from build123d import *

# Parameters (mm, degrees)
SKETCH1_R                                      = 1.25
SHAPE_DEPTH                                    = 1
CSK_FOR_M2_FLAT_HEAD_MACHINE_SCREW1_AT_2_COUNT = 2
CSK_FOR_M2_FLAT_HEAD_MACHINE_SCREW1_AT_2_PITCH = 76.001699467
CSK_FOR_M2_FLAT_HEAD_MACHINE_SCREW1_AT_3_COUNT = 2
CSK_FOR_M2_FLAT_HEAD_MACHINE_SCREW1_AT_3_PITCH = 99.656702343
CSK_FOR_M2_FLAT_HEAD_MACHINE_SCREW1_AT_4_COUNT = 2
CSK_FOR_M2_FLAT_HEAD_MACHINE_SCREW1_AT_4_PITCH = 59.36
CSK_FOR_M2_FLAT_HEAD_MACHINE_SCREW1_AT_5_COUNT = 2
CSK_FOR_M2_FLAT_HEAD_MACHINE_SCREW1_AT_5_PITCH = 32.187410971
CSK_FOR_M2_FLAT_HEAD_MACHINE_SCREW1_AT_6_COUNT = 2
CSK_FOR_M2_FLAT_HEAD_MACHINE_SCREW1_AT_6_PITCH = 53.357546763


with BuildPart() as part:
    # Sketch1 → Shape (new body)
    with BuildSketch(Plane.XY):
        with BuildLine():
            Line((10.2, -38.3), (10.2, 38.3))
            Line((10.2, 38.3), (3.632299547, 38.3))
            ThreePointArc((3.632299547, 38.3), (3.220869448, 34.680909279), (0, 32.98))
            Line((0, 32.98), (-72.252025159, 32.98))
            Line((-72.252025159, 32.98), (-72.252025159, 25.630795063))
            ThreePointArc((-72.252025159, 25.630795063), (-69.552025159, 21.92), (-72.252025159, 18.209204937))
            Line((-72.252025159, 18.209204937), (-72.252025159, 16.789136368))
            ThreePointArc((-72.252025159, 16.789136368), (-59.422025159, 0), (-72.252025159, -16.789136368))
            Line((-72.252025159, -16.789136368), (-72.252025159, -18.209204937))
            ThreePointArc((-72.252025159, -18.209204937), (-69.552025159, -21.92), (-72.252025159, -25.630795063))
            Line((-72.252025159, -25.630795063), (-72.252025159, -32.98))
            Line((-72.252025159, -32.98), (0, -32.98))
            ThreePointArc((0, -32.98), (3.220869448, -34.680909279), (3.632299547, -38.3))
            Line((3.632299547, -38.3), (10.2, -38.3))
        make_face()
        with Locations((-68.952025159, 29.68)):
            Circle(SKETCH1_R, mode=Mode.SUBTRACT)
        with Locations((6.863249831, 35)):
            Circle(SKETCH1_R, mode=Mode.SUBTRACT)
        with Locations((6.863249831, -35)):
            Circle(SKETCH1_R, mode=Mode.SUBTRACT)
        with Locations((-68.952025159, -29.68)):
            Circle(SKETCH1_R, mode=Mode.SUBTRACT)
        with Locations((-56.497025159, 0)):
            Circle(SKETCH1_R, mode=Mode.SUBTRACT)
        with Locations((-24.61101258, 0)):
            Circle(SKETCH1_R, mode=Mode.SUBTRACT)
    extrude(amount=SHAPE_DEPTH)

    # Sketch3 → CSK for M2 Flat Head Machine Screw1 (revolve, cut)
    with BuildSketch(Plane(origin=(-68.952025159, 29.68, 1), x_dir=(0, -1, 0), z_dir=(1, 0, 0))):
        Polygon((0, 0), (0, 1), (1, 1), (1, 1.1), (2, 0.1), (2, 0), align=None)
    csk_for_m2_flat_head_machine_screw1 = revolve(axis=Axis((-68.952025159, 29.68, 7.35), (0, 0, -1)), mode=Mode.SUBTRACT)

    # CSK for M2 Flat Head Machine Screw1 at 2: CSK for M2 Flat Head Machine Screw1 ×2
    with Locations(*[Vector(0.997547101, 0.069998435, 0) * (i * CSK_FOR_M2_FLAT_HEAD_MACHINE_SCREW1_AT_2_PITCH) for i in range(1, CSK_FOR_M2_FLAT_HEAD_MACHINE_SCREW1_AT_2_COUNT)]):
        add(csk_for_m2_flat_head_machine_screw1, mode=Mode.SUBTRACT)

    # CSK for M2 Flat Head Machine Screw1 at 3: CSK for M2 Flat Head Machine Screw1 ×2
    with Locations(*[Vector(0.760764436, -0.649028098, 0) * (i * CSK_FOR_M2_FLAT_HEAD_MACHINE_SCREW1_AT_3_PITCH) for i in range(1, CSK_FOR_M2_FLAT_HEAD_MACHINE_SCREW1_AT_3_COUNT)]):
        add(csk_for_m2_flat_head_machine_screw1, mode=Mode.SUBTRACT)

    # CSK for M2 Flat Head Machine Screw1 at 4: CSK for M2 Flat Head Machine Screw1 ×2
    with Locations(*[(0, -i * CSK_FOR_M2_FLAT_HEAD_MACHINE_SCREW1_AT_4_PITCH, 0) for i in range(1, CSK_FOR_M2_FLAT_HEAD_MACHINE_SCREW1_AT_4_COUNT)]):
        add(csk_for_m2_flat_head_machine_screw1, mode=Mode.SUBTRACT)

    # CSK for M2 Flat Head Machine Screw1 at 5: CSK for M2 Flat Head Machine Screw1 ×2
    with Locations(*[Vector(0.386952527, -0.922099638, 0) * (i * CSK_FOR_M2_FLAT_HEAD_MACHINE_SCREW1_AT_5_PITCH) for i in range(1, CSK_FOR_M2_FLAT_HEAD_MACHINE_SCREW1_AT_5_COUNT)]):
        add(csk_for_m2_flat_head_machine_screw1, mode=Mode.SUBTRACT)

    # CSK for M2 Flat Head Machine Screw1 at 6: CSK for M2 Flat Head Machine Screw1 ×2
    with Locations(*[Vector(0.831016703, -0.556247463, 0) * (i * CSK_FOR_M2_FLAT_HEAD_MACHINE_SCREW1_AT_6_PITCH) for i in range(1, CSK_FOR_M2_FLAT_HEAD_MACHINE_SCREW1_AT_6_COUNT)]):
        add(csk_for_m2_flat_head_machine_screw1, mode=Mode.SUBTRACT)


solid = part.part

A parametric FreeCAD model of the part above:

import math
import FreeCAD as App
import Part
import Sketcher
from FreeCAD import Vector


def add_polygon(sketch, points):
    """Adds a closed chain of lines whose ends are joined by coincident constraints."""
    first, n = sketch.GeometryCount, len(points)
    for a, b in zip(points, points[1:] + points[:1]):
        sketch.addGeometry(Part.LineSegment(App.Vector(*a, 0), App.Vector(*b, 0)), False)
    for i in range(n):
        sketch.addConstraint(Sketcher.Constraint("Coincident", first + i, 2, first + (i + 1) % n, 1))

doc = App.newDocument("Part")
body = doc.addObject("PartDesign::Body", "Body")

sketch1 = body.newObject("Sketcher::SketchObject", "Sketch")
sketch1.AttachmentSupport = (doc.getObject("XY_Plane"), [""])
sketch1.MapMode = "FlatFace"
sketch1.addGeometry(Part.LineSegment(Vector(10.2, -38.3, 0), Vector(10.2, 38.3, 0)), False)
sketch1.addGeometry(Part.LineSegment(Vector(10.2, 38.3, 0), Vector(3.6323, 38.3, 0)), False)
sketch1.addGeometry(Part.ArcOfCircle(Part.Circle(Vector(0, 36.88, 0), Vector(0, 0, 1), 3.9), math.radians(-90), math.radians(21.352363)), False)
sketch1.addGeometry(Part.LineSegment(Vector(0, 32.98, 0), Vector(-72.252025, 32.98, 0)), False)
sketch1.addGeometry(Part.LineSegment(Vector(-72.252025, 32.98, 0), Vector(-72.252025, 25.630795, 0)), False)
sketch1.addGeometry(Part.ArcOfCircle(Part.Circle(Vector(-73.452025, 21.92, 0), Vector(0, 0, 1), 3.9), math.radians(-72.079787), math.radians(72.079787)), False)
sketch1.addGeometry(Part.LineSegment(Vector(-72.252025, 18.209205, 0), Vector(-72.252025, 16.789136, 0)), False)
sketch1.addGeometry(Part.ArcOfCircle(Part.Circle(Vector(-76.822025, 0, 0), Vector(0, 0, 1), 17.4), math.radians(-74.773013), math.radians(74.773013)), False)
sketch1.addGeometry(Part.LineSegment(Vector(-72.252025, -16.789136, 0), Vector(-72.252025, -18.209205, 0)), False)
sketch1.addGeometry(Part.ArcOfCircle(Part.Circle(Vector(-73.452025, -21.92, 0), Vector(0, 0, 1), 3.9), math.radians(-72.079787), math.radians(72.079787)), False)
sketch1.addGeometry(Part.LineSegment(Vector(-72.252025, -25.630795, 0), Vector(-72.252025, -32.98, 0)), False)
sketch1.addGeometry(Part.LineSegment(Vector(-72.252025, -32.98, 0), Vector(0, -32.98, 0)), False)
sketch1.addGeometry(Part.ArcOfCircle(Part.Circle(Vector(0, -36.88, 0), Vector(0, 0, 1), 3.9), math.radians(-21.352363), math.radians(90)), False)
sketch1.addGeometry(Part.LineSegment(Vector(3.6323, -38.3, 0), Vector(10.2, -38.3, 0)), False)
sketch1.addGeometry(Part.Circle(Vector(-68.952025, -29.68, 0), Vector(0, 0, 1), 1.25), False)
sketch1.addGeometry(Part.Circle(Vector(6.86325, -35, 0), Vector(0, 0, 1), 1.25), False)
sketch1.addGeometry(Part.Circle(Vector(-56.497025, 0, 0), Vector(0, 0, 1), 1.25), False)
sketch1.addGeometry(Part.Circle(Vector(-68.952025, 29.68, 0), Vector(0, 0, 1), 1.25), False)
sketch1.addGeometry(Part.Circle(Vector(-24.611013, 0, 0), Vector(0, 0, 1), 1.25), False)
sketch1.addGeometry(Part.Circle(Vector(6.86325, 35, 0), Vector(0, 0, 1), 1.25), False)
sketch1.addConstraint(Sketcher.Constraint("Coincident", 0, 2, 1, 1))
sketch1.addConstraint(Sketcher.Constraint("Coincident", 1, 2, 2, 2))
sketch1.addConstraint(Sketcher.Constraint("Tangent", 2, 1, 3, 1))
sketch1.addConstraint(Sketcher.Constraint("Coincident", 3, 2, 4, 1))
sketch1.addConstraint(Sketcher.Constraint("Coincident", 4, 2, 5, 2))
sketch1.addConstraint(Sketcher.Constraint("Coincident", 5, 1, 6, 1))
sketch1.addConstraint(Sketcher.Constraint("Coincident", 6, 2, 7, 2))
sketch1.addConstraint(Sketcher.Constraint("Coincident", 7, 1, 8, 1))
sketch1.addConstraint(Sketcher.Constraint("Coincident", 8, 2, 9, 2))
sketch1.addConstraint(Sketcher.Constraint("Coincident", 9, 1, 10, 1))
sketch1.addConstraint(Sketcher.Constraint("Coincident", 10, 2, 11, 1))
sketch1.addConstraint(Sketcher.Constraint("Tangent", 11, 2, 12, 2))
sketch1.addConstraint(Sketcher.Constraint("Coincident", 12, 1, 13, 1))
sketch1.addConstraint(Sketcher.Constraint("Coincident", 13, 2, 0, 1))
sketch1.addConstraint(Sketcher.Constraint("Vertical", 0))
sketch1.addConstraint(Sketcher.Constraint("Horizontal", 1))
sketch1.addConstraint(Sketcher.Constraint("Horizontal", 3))
sketch1.addConstraint(Sketcher.Constraint("Vertical", 4))
sketch1.addConstraint(Sketcher.Constraint("Vertical", 6))
sketch1.addConstraint(Sketcher.Constraint("Vertical", 8))
sketch1.addConstraint(Sketcher.Constraint("Vertical", 10))
sketch1.addConstraint(Sketcher.Constraint("Horizontal", 11))
sketch1.addConstraint(Sketcher.Constraint("Horizontal", 13))
sketch1.addConstraint(Sketcher.Constraint("Equal", 2, 5))
sketch1.addConstraint(Sketcher.Constraint("Equal", 5, 9))
sketch1.addConstraint(Sketcher.Constraint("Equal", 9, 12))
sketch1.addConstraint(Sketcher.Constraint("Equal", 14, 15))
sketch1.addConstraint(Sketcher.Constraint("Equal", 15, 16))
sketch1.addConstraint(Sketcher.Constraint("Equal", 16, 17))
sketch1.addConstraint(Sketcher.Constraint("Equal", 17, 18))
sketch1.addConstraint(Sketcher.Constraint("Equal", 18, 19))
sketch1.addConstraint(Sketcher.Constraint("Symmetric", 2, 3, 12, 3, -1, 1))
sketch1.addConstraint(Sketcher.Constraint("Symmetric", 5, 3, 9, 3, -1))
sketch1.addConstraint(Sketcher.Constraint("Symmetric", 14, 3, 17, 3, -1))
sketch1.addConstraint(Sketcher.Constraint("Symmetric", 15, 3, 19, 3, -1))
sketch1.addConstraint(Sketcher.Constraint("Symmetric", 6, 2, 7, 1, -1))
sketch1.addConstraint(Sketcher.Constraint("Symmetric", 1, 2, 12, 1, -1))
sketch1.addConstraint(Sketcher.Constraint("PointOnObject", 16, 3, -1))
sketch1.addConstraint(Sketcher.Constraint("PointOnObject", 18, 3, -1))
sketch1.addConstraint(Sketcher.Constraint("Vertical", 4, 2, 5, 1))
sketch1.addConstraint(Sketcher.Constraint("Vertical", 8, 2, 9, 1))
sketch1.addConstraint(Sketcher.Constraint("Diameter", 14, 2.5))
sketch1.addConstraint(Sketcher.Constraint("Radius", 2, 3.9))
sketch1.addConstraint(Sketcher.Constraint("Radius", 7, 17.4))
sketch1.addConstraint(Sketcher.Constraint("DistanceY", 0, 1, 0, 2, 76.6))
sketch1.addConstraint(Sketcher.Constraint("DistanceY", 15, 3, -1, 1, 35.0))
sketch1.addConstraint(Sketcher.Constraint("DistanceX", -1, 1, 0, 2, 10.2))
sketch1.addConstraint(Sketcher.Constraint("DistanceY", 9, 3, 2, 3, 58.8))
sketch1.addConstraint(Sketcher.Constraint("DistanceX", 9, 3, 14, 3, 4.5))
sketch1.addConstraint(Sketcher.Constraint("DistanceY", 14, 3, 5, 3, 51.6))
sketch1.addConstraint(Sketcher.Constraint("DistanceX", 3, 2, 17, 3, 3.3))
sketch1.addConstraint(Sketcher.Constraint("DistanceY", -1, 1, 2, 3, 36.88))
sketch1.addConstraint(Sketcher.Constraint("DistanceX", 7, 3, 5, 3, 3.37))
sketch1.addConstraint(Sketcher.Constraint("DistanceX", 7, 3, 16, 3, 20.325))
sketch1.addConstraint(Sketcher.Constraint("DistanceX", 3, 2, 3, 1, 72.252025))
sketch1.addConstraint(Sketcher.Constraint("DistanceX", -1, 1, 15, 3, 6.86325))
sketch1.addConstraint(Sketcher.Constraint("DistanceX", 18, 3, -1, 1, 24.611013))
pad1 = body.newObject("PartDesign::Pad", "Pad")
pad1.Profile = sketch1
pad1.Length = 1

sketch2 = body.newObject("Sketcher::SketchObject", "Sketch001")
sketch2.AttachmentSupport = (doc.getObject("YZ_Plane"), [""])
sketch2.MapMode = "FlatFace"
sketch2.AttachmentOffset = App.Placement(Vector(0, 0, -68.952025), App.Rotation())
add_polygon(sketch2, [(29.68, 0), (29.68, 1), (27.68, 1), (27.68, 0.9), (28.68, -0.1), (28.68, 0)])
sketch2.addGeometry(Part.LineSegment(Vector(29.68, 1, 0), Vector(29.68, -0.1, 0)), True)
sketch2.addConstraint(Sketcher.Constraint("Vertical", 0))
sketch2.addConstraint(Sketcher.Constraint("Horizontal", 1))
sketch2.addConstraint(Sketcher.Constraint("Vertical", 2))
sketch2.addConstraint(Sketcher.Constraint("Vertical", 4))
sketch2.addConstraint(Sketcher.Constraint("Horizontal", 5))
sketch2.addConstraint(Sketcher.Constraint("Vertical", 6))
sketch2.addConstraint(Sketcher.Constraint("Coincident", 6, 1, 0, 2))
sketch2.addConstraint(Sketcher.Constraint("PointOnObject", 4, 2, -1))
sketch2.addConstraint(Sketcher.Constraint("Horizontal", 3, 2, 6, 2))
sketch2.addConstraint(Sketcher.Constraint("Equal", 5, 0))
sketch2.addConstraint(Sketcher.Constraint("Equal", 2, 4))
sketch2.addConstraint(Sketcher.Constraint("DistanceX", 1, 2, 1, 1, 2.0))
sketch2.addConstraint(Sketcher.Constraint("DistanceX", 5, 1, 5, 2, 1.0))
sketch2.addConstraint(Sketcher.Constraint("DistanceY", 2, 2, 2, 1, 0.1))
sketch2.addConstraint(Sketcher.Constraint("DistanceX", -1, 1, 0, 2, 29.68))
groove = body.newObject("PartDesign::Groove", "Groove")
groove.Profile = sketch2
groove.ReferenceAxis = (sketch2, ["Axis0"])
groove.Angle = 360
doc.recompute()

datumline = body.newObject("PartDesign::Line", "DatumLine")
datumline.Placement = App.Placement(Vector(0, 0, 0), App.Rotation(Vector(0, 0, 1), Vector(0.997547101, 0.069998435, 0)))
linearpattern = body.newObject("PartDesign::LinearPattern", "LinearPattern")
linearpattern.Originals = [groove]
linearpattern.Direction = (datumline, [""])
linearpattern.Mode = "offset"
linearpattern.Offset = 76.001699
linearpattern.Occurrences = 2
body.Tip = linearpattern
doc.recompute()

datumline2 = body.newObject("PartDesign::Line", "DatumLine001")
datumline2.Placement = App.Placement(Vector(0, 0, 0), App.Rotation(Vector(0, 0, 1), Vector(0.760764436, -0.649028098, 0)))
linearpattern2 = body.newObject("PartDesign::LinearPattern", "LinearPattern001")
linearpattern2.Originals = [groove]
linearpattern2.Direction = (datumline2, [""])
linearpattern2.Mode = "offset"
linearpattern2.Offset = 99.656702
linearpattern2.Occurrences = 2
body.Tip = linearpattern2
doc.recompute()

linearpattern3 = body.newObject("PartDesign::LinearPattern", "LinearPattern002")
linearpattern3.Originals = [groove]
linearpattern3.Direction = (doc.getObject("Y_Axis"), [""])
linearpattern3.Mode = "offset"
linearpattern3.Offset = 59.36
linearpattern3.Occurrences = 2
linearpattern3.Reversed = True
body.Tip = linearpattern3
doc.recompute()

datumline3 = body.newObject("PartDesign::Line", "DatumLine002")
datumline3.Placement = App.Placement(Vector(0, 0, 0), App.Rotation(Vector(0, 0, 1), Vector(0.386952527, -0.922099638, 0)))
linearpattern4 = body.newObject("PartDesign::LinearPattern", "LinearPattern003")
linearpattern4.Originals = [groove]
linearpattern4.Direction = (datumline3, [""])
linearpattern4.Mode = "offset"
linearpattern4.Offset = 32.187411
linearpattern4.Occurrences = 2
body.Tip = linearpattern4
doc.recompute()

datumline4 = body.newObject("PartDesign::Line", "DatumLine003")
datumline4.Placement = App.Placement(Vector(0, 0, 0), App.Rotation(Vector(0, 0, 1), Vector(0.831016703, -0.556247463, 0)))
linearpattern5 = body.newObject("PartDesign::LinearPattern", "LinearPattern004")
linearpattern5.Originals = [groove]
linearpattern5.Direction = (datumline4, [""])
linearpattern5.Mode = "offset"
linearpattern5.Offset = 53.357547
linearpattern5.Occurrences = 2
body.Tip = linearpattern5

doc.recompute()
